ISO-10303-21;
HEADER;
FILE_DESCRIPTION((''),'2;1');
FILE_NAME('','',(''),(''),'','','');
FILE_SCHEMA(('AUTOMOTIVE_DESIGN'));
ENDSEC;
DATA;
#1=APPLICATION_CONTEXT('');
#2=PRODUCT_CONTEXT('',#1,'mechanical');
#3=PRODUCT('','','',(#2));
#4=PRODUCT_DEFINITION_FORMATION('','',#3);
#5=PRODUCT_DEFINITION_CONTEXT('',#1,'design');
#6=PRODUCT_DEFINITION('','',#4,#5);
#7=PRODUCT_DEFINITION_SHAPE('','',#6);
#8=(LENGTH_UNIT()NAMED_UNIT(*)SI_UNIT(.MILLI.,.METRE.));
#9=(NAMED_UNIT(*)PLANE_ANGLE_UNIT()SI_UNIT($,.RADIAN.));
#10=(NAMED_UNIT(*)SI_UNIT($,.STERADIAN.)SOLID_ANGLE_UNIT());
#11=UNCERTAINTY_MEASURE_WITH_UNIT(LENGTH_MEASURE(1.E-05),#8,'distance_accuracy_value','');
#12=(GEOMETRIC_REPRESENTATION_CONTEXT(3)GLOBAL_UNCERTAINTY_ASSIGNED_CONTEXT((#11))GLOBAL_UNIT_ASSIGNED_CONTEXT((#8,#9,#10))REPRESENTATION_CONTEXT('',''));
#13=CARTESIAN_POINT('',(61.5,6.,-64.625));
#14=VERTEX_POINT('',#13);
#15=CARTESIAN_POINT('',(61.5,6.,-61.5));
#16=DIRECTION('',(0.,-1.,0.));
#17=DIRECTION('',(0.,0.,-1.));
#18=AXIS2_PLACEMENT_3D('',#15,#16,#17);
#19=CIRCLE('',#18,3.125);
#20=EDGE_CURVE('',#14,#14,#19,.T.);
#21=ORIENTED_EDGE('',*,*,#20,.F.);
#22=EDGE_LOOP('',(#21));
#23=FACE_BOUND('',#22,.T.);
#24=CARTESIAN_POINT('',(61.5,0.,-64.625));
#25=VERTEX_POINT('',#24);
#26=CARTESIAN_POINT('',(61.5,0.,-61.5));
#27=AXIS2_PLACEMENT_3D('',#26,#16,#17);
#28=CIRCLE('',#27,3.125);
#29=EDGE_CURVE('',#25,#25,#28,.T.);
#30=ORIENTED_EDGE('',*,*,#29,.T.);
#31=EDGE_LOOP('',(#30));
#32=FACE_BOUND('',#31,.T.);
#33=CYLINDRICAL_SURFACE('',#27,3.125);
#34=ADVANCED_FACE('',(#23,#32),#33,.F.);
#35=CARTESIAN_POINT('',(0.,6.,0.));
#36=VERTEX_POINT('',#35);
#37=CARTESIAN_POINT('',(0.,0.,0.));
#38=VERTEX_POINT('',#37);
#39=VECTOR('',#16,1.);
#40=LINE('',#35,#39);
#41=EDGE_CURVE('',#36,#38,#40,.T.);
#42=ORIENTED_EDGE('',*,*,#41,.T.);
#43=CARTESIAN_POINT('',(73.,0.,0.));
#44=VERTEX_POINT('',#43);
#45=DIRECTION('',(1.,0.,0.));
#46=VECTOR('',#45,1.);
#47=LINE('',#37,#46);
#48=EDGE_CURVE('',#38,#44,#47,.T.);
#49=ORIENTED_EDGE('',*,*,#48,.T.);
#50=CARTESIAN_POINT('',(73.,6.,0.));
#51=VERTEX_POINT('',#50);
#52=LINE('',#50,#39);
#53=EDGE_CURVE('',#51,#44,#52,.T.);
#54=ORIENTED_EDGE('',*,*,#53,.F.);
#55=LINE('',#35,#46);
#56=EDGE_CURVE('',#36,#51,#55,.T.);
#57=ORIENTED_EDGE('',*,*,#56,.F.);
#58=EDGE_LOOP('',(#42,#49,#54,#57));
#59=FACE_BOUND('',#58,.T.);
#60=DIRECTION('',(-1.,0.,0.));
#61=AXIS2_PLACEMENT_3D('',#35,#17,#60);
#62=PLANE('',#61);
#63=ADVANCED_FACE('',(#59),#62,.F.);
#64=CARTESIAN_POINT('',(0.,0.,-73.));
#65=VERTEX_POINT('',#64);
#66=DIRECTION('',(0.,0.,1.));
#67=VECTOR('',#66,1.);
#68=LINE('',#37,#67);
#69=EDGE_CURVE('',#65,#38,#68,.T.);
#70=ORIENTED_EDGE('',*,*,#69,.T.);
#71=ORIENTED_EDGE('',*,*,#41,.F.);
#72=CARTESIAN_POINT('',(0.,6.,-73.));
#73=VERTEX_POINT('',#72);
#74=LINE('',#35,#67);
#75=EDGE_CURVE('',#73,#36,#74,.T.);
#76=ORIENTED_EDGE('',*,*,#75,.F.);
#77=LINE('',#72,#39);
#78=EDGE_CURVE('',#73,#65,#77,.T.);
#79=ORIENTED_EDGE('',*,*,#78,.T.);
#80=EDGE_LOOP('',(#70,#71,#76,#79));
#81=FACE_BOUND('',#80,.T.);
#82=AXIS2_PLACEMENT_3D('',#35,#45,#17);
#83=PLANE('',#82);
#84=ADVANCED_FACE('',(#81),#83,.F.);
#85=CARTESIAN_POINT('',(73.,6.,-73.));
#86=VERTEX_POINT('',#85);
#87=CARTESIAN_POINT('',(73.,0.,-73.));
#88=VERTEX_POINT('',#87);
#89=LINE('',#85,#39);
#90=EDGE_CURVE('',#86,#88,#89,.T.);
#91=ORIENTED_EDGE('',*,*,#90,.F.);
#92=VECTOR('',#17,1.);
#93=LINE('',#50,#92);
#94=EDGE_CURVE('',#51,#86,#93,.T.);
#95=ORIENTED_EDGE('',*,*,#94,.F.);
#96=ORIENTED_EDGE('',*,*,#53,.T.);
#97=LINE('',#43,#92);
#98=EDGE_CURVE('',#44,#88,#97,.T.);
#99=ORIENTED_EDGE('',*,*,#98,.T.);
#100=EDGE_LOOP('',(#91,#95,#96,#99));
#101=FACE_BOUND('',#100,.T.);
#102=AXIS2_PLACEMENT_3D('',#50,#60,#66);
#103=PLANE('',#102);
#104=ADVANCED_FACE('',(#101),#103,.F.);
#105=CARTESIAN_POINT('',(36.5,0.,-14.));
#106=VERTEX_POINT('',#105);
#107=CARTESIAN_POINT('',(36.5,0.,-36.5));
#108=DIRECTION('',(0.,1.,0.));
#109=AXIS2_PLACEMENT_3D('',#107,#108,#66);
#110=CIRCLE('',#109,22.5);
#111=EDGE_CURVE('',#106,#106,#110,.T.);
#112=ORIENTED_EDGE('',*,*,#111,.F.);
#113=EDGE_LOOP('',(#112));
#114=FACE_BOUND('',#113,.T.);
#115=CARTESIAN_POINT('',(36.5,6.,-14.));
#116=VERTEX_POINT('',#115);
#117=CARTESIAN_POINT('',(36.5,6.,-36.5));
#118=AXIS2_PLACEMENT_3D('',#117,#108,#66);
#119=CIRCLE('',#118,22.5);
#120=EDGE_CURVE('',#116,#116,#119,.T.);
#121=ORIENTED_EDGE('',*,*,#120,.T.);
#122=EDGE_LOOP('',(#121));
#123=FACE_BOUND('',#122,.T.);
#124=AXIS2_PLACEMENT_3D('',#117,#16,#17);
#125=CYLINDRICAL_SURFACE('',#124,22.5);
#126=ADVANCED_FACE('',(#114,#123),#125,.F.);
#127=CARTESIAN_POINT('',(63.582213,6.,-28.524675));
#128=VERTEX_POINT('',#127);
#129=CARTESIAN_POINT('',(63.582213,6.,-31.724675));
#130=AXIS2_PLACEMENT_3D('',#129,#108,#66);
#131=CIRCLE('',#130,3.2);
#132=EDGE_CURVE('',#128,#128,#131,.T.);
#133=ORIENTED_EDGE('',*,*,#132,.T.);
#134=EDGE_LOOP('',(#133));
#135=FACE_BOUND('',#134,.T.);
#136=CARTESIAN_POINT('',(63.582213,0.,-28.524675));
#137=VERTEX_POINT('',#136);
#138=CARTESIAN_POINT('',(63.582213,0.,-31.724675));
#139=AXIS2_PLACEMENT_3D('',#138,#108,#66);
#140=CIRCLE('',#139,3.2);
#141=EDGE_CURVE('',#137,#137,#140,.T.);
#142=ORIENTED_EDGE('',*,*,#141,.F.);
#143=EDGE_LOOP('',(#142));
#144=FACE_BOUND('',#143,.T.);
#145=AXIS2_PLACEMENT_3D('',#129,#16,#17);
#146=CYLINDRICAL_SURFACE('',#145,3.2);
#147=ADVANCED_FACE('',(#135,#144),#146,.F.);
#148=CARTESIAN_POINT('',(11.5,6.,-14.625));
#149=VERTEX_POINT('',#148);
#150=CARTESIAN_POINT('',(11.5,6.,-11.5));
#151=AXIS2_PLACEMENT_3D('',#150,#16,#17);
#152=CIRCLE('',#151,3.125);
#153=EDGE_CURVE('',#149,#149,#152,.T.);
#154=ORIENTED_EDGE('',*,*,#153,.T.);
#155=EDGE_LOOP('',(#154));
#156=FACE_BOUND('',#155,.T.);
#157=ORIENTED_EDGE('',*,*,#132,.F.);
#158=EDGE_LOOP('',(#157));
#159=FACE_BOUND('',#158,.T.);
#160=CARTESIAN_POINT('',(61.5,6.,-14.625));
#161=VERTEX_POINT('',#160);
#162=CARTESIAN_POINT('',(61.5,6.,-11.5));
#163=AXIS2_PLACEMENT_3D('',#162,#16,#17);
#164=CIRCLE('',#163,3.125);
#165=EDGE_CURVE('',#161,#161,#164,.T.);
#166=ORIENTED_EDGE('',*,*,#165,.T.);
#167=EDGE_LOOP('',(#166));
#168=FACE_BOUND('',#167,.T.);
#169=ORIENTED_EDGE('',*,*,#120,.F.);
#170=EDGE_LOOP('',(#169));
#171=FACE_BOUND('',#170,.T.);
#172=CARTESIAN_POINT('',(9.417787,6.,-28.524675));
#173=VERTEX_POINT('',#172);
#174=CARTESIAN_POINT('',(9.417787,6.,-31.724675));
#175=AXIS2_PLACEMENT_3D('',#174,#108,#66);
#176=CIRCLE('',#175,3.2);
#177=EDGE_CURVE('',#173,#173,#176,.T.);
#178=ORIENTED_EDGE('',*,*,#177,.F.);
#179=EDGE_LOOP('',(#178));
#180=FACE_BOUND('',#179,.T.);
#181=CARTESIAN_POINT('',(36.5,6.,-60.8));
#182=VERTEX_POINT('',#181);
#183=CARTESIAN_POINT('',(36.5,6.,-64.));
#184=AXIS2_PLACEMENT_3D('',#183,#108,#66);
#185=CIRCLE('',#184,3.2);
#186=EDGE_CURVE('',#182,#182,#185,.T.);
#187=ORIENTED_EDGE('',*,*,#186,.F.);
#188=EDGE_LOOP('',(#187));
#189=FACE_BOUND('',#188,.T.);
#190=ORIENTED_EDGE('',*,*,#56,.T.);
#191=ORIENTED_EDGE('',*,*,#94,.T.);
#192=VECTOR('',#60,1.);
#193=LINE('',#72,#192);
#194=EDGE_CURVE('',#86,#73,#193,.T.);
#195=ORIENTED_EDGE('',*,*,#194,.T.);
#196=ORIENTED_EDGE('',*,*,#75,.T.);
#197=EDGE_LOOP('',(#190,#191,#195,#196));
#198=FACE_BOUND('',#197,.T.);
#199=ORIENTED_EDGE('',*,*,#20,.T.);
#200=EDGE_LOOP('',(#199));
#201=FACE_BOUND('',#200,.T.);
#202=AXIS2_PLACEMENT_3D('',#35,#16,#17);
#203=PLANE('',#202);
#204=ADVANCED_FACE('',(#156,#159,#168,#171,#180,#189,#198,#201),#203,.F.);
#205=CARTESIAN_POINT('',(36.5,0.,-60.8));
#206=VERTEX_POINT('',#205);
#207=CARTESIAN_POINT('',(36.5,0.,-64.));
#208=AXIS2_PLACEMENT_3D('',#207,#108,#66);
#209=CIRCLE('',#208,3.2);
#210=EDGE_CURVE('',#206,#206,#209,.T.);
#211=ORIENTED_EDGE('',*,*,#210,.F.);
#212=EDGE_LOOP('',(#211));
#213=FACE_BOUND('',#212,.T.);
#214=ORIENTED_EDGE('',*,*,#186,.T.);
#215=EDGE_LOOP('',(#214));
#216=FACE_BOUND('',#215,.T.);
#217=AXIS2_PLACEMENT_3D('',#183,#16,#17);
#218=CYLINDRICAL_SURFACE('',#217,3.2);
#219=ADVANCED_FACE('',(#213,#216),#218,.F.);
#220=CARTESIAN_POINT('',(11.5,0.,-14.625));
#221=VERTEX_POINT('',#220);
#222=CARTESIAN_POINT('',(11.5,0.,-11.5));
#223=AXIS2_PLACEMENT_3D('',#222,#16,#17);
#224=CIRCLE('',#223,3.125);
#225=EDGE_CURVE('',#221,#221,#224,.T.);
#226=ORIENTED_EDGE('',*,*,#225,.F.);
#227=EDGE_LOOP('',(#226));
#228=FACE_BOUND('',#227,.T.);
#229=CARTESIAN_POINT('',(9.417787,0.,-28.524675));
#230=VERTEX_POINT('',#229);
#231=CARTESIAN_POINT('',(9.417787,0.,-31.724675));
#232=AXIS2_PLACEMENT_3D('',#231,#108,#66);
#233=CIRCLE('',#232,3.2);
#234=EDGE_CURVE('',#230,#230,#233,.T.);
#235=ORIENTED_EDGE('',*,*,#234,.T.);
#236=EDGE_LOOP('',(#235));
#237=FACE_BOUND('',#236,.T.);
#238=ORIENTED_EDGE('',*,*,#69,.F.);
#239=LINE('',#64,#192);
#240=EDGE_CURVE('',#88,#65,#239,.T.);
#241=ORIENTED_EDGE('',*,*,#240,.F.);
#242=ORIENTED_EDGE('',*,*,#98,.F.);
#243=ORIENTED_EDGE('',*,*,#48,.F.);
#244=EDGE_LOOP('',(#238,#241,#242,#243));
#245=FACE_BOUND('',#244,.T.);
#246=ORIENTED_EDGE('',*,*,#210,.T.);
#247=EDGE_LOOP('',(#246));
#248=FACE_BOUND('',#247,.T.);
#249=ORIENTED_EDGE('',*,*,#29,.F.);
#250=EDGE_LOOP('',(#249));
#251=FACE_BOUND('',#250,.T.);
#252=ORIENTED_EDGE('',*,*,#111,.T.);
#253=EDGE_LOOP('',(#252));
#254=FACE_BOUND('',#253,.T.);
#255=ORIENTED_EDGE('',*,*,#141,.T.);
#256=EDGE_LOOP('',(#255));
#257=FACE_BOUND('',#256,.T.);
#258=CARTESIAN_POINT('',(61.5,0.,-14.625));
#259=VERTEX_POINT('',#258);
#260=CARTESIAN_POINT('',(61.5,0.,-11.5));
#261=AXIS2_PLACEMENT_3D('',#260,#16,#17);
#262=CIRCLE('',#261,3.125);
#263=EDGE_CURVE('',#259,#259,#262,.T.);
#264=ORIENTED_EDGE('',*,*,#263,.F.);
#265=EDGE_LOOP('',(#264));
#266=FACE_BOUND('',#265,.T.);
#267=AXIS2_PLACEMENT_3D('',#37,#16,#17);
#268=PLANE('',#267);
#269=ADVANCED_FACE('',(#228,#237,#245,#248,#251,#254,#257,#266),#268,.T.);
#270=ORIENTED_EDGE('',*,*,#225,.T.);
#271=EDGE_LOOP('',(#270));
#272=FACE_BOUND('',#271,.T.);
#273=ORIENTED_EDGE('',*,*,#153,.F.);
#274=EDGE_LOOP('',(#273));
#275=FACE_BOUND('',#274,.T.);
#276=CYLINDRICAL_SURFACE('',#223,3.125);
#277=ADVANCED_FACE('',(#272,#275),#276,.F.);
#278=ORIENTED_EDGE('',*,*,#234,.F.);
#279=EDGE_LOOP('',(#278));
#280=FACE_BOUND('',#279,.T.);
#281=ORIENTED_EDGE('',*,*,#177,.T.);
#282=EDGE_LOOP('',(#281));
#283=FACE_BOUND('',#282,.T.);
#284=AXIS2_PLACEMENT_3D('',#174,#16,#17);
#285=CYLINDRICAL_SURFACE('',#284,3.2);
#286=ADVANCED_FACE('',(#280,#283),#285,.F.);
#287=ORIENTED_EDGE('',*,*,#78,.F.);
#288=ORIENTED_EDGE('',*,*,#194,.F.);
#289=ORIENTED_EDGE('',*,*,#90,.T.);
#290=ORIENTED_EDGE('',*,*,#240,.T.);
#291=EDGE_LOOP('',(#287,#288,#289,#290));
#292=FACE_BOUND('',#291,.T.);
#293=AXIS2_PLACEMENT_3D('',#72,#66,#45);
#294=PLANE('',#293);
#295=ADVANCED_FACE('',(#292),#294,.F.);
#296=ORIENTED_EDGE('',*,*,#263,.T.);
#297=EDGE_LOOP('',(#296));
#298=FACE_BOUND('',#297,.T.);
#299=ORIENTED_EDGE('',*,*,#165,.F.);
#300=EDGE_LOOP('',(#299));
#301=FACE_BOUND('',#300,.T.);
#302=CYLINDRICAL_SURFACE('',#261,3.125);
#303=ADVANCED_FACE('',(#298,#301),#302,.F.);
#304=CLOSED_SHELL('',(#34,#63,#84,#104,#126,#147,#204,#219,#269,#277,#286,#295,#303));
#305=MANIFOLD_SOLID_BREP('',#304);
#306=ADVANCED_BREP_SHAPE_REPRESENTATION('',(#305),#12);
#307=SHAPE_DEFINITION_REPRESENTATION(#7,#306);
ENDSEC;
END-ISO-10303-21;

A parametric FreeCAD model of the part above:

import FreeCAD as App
import Part
import Sketcher

V = App.Vector


def add_polygon(sketch, points):
    """Adds a closed chain of lines whose ends are joined by coincident constraints."""
    first, n = sketch.GeometryCount, len(points)
    for a, b in zip(points, points[1:] + points[:1]):
        sketch.addGeometry(Part.LineSegment(App.Vector(*a, 0), App.Vector(*b, 0)), False)
    for i in range(n):
        sketch.addConstraint(Sketcher.Constraint("Coincident", first + i, 2, first + (i + 1) % n, 1))

doc = App.newDocument("Part")
body = doc.addObject("PartDesign::Body", "Body")

# Sketch on XZ plane
sketch1 = doc.addObject("Sketcher::SketchObject", "Sketch")
body.addObject(sketch1)
sketch1.AttachmentSupport = (doc.XZ_Plane, [""])
sketch1.MapMode = "FlatFace"
add_polygon(sketch1, [(0, -73), (0, 0), (73, 0), (73, -73)])  # lines 0-3
sketch1.addGeometry(Part.Circle(V(9.4, -31.7, 0), V(0, 0, 1), 3.2), False)  # 4
sketch1.addGeometry(Part.Circle(V(36.5, -36.5, 0), V(0, 0, 1), 22.5), False)  # 5
sketch1.addGeometry(Part.Circle(V(63.6, -31.7, 0), V(0, 0, 1), 3.2), False)  # 6
sketch1.addGeometry(Part.Circle(V(36.5, -64, 0), V(0, 0, 1), 3.2), False)  # 7
sketch1.addConstraint([
    Sketcher.Constraint("Vertical", 0),
    Sketcher.Constraint("Horizontal", 1),
    Sketcher.Constraint("Vertical", 2),
    Sketcher.Constraint("Horizontal", 3),
    Sketcher.Constraint("Coincident", 0, 2, -1, 1),
    Sketcher.Constraint("Equal", 4, 6),
    Sketcher.Constraint("Equal", 6, 7),
    Sketcher.Constraint("Horizontal", 4, 3, 6, 3),
    Sketcher.Constraint("Vertical", 5, 3, 7, 3),
    Sketcher.Constraint("Equal", 3, 0),
    Sketcher.Constraint("Diameter", 5, 45.0),
    Sketcher.Constraint("Diameter", 4, 6.4),
    Sketcher.Constraint("DistanceX", 1, 1, 1, 2, 73.0),
    Sketcher.Constraint("DistanceY", 7, 3, -1, 1, 64.0),
    Sketcher.Constraint("DistanceX", -1, 1, 5, 3, 36.5),
    Sketcher.Constraint("DistanceY", 5, 3, -1, 1, 36.5),
    Sketcher.Constraint("DistanceX", -1, 1, 4, 3, 9.417787),
    Sketcher.Constraint("DistanceY", 4, 3, -1, 1, 31.724675),
    Sketcher.Constraint("DistanceX", -1, 1, 6, 3, 63.582213),
])
pad1 = doc.addObject("PartDesign::Pad", "Pad")
body.addObject(pad1)
pad1.Profile = sketch1
pad1.Length = 6
pad1.Reversed = True

# Sketch on XZ plane
sketch2 = doc.addObject("Sketcher::SketchObject", "Sketch001")
body.addObject(sketch2)
sketch2.AttachmentSupport = (doc.XZ_Plane, [""])
sketch2.MapMode = "FlatFace"
sketch2.addGeometry([
    Part.Circle(V(11.5, -11.5, 0), V(0, 0, 1), 3.1),
    Part.Circle(V(61.5, -11.5, 0), V(0, 0, 1), 3.1),
    Part.Circle(V(61.5, -61.5, 0), V(0, 0, 1), 3.1),
], False)
sketch2.addConstraint([
    Sketcher.Constraint("Equal", 0, 1),
    Sketcher.Constraint("Equal", 1, 2),
    Sketcher.Constraint("Horizontal", 0, 3, 1, 3),
    Sketcher.Constraint("Vertical", 1, 3, 2, 3),
    Sketcher.Constraint("Diameter", 0, 6.25),
    Sketcher.Constraint("DistanceX", 0, 3, 1, 3, 50.0),
    Sketcher.Constraint("DistanceY", 2, 3, 1, 3, 50.0),
    Sketcher.Constraint("DistanceX", -1, 1, 0, 3, 11.5),
    Sketcher.Constraint("DistanceY", 0, 3, -1, 1, 11.5),
])
doc.recompute()
hole = doc.addObject("PartDesign::Hole", "Hole")
body.addObject(hole)
hole.Profile = sketch2
hole.ThreadType = "None"
hole.Diameter = 6.25
hole.DepthType = "Dimension"
hole.Depth = 11.94
hole.DrillPoint = "Angled"
hole.DrillPointAngle = 118

doc.recompute()
